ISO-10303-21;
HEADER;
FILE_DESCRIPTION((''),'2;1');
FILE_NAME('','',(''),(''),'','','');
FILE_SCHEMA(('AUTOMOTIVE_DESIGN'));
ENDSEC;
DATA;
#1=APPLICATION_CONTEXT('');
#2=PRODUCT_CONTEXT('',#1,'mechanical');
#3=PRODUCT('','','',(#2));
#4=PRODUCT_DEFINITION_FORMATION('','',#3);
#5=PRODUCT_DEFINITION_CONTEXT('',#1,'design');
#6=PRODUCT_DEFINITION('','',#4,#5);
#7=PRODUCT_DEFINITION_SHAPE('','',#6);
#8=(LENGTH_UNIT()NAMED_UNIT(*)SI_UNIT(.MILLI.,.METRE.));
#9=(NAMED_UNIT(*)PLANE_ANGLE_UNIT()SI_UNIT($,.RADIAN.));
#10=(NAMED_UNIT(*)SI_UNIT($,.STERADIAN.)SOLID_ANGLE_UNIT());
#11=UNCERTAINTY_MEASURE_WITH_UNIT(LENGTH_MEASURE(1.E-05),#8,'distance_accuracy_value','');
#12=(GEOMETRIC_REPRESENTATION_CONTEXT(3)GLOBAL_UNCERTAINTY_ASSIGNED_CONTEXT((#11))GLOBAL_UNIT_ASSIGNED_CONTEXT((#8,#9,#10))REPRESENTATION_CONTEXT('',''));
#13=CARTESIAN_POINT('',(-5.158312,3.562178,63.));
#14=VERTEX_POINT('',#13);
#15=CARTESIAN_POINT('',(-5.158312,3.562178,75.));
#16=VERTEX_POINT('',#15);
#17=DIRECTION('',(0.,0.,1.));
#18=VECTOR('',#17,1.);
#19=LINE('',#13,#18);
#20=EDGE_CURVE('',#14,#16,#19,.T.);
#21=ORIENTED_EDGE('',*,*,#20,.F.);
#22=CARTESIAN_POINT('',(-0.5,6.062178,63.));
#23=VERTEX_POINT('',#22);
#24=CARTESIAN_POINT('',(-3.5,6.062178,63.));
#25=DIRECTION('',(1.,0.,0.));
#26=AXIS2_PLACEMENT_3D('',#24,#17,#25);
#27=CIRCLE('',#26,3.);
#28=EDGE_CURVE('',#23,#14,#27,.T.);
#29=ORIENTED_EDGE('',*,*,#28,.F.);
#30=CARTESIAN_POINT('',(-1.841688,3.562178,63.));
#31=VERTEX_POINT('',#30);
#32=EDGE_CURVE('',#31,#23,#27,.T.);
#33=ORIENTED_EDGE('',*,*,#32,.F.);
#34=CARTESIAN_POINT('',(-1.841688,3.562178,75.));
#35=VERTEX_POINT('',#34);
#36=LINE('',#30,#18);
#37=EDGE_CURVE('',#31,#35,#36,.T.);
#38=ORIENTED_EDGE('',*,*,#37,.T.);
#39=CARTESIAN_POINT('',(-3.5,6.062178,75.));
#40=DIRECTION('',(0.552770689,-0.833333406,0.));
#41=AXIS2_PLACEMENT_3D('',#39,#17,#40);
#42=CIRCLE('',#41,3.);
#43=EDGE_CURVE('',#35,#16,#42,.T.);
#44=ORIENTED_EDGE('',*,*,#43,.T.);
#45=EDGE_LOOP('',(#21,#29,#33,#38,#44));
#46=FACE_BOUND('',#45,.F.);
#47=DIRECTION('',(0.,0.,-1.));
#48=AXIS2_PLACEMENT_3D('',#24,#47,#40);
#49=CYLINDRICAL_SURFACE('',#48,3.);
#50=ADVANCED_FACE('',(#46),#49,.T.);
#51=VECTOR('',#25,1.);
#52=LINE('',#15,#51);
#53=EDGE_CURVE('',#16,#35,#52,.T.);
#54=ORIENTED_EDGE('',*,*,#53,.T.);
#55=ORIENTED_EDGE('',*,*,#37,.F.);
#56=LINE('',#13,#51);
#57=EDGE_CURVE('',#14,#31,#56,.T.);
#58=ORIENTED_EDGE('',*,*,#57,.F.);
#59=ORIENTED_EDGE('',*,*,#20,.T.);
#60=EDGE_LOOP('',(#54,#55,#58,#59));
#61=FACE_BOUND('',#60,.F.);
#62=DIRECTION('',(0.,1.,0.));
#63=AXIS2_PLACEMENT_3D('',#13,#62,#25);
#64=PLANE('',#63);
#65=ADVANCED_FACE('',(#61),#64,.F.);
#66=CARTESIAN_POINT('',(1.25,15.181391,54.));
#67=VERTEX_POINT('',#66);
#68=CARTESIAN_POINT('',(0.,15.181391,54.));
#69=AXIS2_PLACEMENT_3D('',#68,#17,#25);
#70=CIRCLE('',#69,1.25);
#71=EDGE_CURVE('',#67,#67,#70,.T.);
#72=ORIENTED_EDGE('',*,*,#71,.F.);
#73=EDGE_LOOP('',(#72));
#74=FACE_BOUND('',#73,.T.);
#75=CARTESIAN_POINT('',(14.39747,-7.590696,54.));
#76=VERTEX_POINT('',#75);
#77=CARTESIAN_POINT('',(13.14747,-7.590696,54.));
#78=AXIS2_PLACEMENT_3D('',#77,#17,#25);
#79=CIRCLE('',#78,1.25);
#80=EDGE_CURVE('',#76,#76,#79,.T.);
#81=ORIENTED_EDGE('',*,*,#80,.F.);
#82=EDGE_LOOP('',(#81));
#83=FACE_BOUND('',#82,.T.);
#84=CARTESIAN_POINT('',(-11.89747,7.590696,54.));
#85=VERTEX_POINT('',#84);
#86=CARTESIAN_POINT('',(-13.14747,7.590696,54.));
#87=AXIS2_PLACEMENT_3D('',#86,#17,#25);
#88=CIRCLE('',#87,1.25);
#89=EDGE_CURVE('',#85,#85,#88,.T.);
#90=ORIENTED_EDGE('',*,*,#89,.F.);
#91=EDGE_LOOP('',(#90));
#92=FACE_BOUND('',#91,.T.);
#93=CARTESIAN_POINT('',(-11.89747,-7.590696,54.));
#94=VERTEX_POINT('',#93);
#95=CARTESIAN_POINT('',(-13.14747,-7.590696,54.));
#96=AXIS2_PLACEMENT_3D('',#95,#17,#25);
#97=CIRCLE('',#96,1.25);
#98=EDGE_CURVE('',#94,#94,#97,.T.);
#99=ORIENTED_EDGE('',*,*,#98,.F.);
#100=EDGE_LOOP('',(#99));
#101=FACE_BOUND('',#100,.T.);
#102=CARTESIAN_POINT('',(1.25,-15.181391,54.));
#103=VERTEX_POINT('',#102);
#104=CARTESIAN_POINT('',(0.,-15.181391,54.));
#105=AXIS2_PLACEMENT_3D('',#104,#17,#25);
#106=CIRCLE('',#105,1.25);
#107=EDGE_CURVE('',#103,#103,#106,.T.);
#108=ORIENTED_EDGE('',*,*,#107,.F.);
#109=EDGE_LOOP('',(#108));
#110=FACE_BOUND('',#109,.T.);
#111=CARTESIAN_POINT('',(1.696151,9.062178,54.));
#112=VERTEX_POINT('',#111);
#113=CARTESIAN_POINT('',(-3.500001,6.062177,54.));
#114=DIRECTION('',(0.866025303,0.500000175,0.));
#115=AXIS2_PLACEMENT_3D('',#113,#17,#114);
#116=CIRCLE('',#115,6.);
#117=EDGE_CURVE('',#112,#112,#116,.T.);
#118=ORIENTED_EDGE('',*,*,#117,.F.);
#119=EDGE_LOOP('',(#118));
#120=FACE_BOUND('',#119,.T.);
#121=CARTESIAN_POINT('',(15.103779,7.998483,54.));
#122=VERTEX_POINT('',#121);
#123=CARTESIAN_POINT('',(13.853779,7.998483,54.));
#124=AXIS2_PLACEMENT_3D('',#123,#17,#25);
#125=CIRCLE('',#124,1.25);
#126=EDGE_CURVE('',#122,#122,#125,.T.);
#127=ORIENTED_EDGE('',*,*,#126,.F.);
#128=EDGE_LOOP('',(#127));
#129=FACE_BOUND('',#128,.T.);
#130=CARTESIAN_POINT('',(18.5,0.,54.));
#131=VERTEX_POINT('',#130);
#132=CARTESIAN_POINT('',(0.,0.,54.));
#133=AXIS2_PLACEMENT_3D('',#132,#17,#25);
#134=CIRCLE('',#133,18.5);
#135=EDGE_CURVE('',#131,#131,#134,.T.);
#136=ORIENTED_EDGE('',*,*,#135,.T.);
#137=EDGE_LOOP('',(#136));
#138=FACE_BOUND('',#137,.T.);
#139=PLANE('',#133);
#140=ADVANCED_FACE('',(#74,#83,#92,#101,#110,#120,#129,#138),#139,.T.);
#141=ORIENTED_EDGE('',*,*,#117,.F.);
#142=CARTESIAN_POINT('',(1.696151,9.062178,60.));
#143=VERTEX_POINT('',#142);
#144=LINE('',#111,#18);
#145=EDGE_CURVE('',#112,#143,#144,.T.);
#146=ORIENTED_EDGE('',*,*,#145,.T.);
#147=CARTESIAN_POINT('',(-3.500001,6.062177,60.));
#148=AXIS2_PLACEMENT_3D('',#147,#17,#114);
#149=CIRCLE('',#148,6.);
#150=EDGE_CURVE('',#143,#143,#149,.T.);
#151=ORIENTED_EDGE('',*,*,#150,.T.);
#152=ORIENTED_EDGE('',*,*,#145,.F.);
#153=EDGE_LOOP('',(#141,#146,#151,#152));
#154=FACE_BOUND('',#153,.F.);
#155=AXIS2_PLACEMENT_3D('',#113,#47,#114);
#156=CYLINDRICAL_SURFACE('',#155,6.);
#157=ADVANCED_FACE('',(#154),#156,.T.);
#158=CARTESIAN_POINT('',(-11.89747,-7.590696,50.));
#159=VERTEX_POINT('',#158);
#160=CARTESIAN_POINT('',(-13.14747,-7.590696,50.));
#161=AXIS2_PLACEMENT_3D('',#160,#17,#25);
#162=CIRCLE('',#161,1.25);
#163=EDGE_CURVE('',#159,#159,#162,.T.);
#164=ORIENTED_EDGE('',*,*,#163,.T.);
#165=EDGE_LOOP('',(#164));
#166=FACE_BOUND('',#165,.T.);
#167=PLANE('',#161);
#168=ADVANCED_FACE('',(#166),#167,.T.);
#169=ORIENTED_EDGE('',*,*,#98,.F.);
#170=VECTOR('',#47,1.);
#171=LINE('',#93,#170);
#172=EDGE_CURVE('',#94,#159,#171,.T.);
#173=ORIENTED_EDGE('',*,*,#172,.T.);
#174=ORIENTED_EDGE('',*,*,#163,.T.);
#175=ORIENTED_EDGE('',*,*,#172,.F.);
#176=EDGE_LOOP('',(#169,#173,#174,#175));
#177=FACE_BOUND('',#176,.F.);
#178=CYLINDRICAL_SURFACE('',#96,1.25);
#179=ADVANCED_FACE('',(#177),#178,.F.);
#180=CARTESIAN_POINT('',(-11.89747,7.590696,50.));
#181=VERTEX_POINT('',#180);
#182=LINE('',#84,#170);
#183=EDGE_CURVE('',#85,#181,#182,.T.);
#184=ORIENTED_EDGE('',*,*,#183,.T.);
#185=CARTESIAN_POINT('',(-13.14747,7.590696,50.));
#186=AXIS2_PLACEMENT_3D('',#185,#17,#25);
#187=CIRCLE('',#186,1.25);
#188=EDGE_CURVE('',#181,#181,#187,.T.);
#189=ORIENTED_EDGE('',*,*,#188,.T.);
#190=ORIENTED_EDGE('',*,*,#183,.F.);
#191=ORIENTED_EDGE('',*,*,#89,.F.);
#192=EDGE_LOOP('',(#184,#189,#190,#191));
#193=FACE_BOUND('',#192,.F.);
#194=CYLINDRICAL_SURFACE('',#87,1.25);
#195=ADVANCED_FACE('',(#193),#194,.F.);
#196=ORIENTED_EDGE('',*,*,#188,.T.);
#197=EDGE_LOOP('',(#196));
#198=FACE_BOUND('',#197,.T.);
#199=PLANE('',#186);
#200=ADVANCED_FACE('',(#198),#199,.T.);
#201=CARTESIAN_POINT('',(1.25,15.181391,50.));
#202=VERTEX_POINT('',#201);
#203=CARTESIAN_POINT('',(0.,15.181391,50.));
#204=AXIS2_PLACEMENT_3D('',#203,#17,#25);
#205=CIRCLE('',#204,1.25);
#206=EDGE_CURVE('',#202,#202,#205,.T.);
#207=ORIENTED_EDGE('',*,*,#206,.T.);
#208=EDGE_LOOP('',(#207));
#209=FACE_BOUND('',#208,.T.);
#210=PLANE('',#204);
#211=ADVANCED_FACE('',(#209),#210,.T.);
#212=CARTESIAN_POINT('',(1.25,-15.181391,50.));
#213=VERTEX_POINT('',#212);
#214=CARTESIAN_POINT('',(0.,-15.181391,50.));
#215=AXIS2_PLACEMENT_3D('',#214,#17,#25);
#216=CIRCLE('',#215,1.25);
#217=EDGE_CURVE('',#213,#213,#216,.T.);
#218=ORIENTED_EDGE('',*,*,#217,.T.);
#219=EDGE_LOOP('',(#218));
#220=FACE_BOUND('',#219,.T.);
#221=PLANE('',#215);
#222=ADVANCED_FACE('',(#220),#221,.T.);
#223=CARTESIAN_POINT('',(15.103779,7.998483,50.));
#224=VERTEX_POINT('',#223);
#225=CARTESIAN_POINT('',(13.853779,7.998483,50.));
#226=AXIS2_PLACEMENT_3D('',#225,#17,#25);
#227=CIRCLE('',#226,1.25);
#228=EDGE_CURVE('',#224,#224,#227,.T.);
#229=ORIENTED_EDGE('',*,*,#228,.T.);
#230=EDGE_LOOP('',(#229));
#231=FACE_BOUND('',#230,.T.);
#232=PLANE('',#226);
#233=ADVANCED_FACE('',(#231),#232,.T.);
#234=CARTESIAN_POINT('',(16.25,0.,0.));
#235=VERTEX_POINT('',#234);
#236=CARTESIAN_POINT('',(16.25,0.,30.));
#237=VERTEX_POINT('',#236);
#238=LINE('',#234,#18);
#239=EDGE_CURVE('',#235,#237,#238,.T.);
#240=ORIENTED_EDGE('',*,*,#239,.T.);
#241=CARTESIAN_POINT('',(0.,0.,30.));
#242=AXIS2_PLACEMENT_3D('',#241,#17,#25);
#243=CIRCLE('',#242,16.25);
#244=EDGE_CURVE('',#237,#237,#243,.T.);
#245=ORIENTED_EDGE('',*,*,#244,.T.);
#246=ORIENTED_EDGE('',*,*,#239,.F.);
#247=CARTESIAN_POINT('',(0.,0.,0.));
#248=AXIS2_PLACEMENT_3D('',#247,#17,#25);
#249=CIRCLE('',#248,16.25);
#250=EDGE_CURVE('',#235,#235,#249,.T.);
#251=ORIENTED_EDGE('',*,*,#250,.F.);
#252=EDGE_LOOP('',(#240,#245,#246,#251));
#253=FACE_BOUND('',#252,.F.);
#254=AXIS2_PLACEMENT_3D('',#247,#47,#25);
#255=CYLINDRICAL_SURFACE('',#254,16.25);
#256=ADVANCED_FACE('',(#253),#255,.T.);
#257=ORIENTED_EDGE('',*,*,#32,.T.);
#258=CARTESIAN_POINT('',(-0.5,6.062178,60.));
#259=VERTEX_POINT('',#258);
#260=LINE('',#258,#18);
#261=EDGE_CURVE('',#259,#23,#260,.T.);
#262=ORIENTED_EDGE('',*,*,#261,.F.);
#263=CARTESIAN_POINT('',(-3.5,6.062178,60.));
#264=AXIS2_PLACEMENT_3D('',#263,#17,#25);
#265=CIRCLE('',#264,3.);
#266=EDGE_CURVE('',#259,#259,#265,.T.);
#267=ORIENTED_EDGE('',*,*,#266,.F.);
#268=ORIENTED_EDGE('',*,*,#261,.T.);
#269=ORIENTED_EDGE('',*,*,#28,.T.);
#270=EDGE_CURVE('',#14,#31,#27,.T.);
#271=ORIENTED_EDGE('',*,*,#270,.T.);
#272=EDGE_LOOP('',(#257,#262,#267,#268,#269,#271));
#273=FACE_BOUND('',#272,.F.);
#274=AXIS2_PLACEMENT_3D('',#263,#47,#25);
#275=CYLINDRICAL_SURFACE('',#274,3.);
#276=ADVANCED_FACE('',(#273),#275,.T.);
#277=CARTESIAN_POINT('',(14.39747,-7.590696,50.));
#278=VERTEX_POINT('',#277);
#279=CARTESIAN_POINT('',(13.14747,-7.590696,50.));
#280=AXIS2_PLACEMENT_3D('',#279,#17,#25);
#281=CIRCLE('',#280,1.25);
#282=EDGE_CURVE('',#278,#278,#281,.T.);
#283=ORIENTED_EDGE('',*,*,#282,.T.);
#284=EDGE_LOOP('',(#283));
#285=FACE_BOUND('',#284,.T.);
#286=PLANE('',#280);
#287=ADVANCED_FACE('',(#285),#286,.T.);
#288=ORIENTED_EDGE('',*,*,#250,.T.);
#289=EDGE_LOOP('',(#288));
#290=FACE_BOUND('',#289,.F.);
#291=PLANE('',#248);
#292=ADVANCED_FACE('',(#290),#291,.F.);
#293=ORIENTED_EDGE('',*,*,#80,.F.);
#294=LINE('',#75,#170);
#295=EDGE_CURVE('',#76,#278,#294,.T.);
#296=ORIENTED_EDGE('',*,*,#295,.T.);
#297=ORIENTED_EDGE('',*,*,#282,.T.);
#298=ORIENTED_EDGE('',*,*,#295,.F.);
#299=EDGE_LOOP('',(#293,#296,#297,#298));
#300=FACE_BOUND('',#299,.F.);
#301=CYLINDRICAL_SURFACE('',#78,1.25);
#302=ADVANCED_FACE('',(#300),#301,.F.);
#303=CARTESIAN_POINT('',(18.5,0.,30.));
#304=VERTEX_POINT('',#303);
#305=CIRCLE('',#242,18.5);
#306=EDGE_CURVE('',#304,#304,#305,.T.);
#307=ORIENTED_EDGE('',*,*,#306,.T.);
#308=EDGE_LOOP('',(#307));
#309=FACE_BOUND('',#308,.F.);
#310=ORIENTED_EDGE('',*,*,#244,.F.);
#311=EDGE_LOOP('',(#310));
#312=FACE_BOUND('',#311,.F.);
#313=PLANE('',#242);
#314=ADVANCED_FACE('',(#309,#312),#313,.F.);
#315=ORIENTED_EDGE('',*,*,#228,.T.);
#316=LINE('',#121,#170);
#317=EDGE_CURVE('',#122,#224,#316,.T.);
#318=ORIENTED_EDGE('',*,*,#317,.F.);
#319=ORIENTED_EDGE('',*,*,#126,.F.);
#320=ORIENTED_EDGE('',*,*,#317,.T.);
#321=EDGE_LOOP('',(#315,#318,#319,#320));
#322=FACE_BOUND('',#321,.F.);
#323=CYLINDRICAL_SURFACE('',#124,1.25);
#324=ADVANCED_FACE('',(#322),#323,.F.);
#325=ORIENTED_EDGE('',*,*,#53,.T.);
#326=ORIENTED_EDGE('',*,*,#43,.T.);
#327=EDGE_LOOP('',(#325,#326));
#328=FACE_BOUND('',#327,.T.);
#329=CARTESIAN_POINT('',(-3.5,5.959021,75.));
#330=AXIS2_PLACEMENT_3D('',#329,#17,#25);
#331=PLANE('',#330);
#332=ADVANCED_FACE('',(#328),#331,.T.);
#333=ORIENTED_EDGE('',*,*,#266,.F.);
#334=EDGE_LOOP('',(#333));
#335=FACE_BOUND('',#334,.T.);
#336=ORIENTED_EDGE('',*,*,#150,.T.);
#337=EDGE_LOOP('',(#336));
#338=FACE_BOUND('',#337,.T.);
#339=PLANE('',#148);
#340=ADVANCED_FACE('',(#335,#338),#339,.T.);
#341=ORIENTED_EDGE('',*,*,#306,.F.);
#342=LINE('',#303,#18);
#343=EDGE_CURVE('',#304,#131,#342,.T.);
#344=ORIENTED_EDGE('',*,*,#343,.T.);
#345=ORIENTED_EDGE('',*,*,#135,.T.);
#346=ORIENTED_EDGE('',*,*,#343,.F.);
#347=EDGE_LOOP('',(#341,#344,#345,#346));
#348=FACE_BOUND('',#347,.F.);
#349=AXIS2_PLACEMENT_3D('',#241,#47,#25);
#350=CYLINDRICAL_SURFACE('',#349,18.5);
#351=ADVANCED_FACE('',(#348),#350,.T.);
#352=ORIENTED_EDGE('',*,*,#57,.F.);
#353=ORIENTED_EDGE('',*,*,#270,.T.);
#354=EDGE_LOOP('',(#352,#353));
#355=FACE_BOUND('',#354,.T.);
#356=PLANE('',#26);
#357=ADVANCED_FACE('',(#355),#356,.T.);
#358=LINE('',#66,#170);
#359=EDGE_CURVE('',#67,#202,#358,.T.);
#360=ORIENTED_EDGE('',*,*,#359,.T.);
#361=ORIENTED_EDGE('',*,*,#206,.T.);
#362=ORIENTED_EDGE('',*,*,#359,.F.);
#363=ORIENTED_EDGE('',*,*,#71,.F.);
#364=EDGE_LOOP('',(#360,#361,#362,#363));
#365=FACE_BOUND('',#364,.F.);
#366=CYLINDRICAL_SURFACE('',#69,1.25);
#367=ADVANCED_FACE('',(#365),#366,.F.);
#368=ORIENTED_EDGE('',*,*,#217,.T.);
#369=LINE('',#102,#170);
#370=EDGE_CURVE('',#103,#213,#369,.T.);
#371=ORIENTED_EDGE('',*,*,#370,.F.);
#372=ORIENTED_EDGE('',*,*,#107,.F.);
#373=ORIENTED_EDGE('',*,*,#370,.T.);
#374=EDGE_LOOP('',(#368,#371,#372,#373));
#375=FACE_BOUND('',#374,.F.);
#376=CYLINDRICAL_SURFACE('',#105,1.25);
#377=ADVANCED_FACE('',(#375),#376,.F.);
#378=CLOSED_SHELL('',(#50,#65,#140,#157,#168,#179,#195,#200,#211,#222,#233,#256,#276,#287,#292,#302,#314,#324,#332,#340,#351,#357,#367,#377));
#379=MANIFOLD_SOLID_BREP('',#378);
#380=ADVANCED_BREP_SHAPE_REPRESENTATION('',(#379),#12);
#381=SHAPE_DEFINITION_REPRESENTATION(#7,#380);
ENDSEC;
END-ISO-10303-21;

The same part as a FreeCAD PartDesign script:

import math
import FreeCAD as App
import Part
import Sketcher

doc = App.newDocument("Part")
body = doc.addObject("PartDesign::Body", "Body")

# Sketch on XY plane
sketch1 = body.newObject("Sketcher::SketchObject", "Sketch")
sketch1.AttachmentSupport = (doc.getObject("XY_Plane"), [""])
sketch1.MapMode = "FlatFace"
sketch1.addGeometry(Part.Circle(App.Vector(0, 0, 0), App.Vector(0, 0, 1), 16), False)
sketch1.addConstraint([
    Sketcher.Constraint("Coincident", 0, 3, -1, 1),
    Sketcher.Constraint("Diameter", 0, 32.5),
])
pad1 = body.newObject("PartDesign::Pad", "Pad")
pad1.Profile = sketch1
pad1.Length = 30

# Sketch on XY plane
sketch2 = body.newObject("Sketcher::SketchObject", "Sketch001")
sketch2.AttachmentSupport = (doc.getObject("XY_Plane"), [""])
sketch2.MapMode = "FlatFace"
sketch2.AttachmentOffset = App.Placement(App.Vector(0, 0, 30), App.Rotation())
sketch2.addGeometry(Part.Circle(App.Vector(0, 0, 0), App.Vector(0, 0, 1), 18), False)
sketch2.addConstraint([
    Sketcher.Constraint("Coincident", 0, 3, -1, 1),
    Sketcher.Constraint("Diameter", 0, 37.0),
])
pad2 = body.newObject("PartDesign::Pad", "Pad001")
pad2.Profile = sketch2
pad2.Length = 24

# Sketch on XY plane
sketch3 = body.newObject("Sketcher::SketchObject", "Sketch002")
sketch3.AttachmentSupport = (doc.getObject("XY_Plane"), [""])
sketch3.MapMode = "FlatFace"
sketch3.AttachmentOffset = App.Placement(App.Vector(0, 0, 54), App.Rotation())
sketch3.addGeometry([
    Part.Circle(App.Vector(-13.1, 7.6, 0), App.Vector(0, 0, 1), 1.2),  # 0
    Part.Circle(App.Vector(-13.1, -7.6, 0), App.Vector(0, 0, 1), 1.2),  # 1
    Part.Circle(App.Vector(13.1, -7.6, 0), App.Vector(0, 0, 1), 1.2),  # 2
    Part.Circle(App.Vector(0, 15.2, 0), App.Vector(0, 0, 1), 1.2),  # 3
    Part.Circle(App.Vector(13.9, 8, 0), App.Vector(0, 0, 1), 1.2),  # 4
    Part.Circle(App.Vector(0, -15.2, 0), App.Vector(0, 0, 1), 1.2),  # 5
], False)
sketch3.addConstraint([
    Sketcher.Constraint("Equal", 0, 1),
    Sketcher.Constraint("Equal", 1, 2),
    Sketcher.Constraint("Equal", 2, 3),
    Sketcher.Constraint("Equal", 3, 4),
    Sketcher.Constraint("Equal", 4, 5),
    Sketcher.Constraint("Symmetric", 0, 3, 2, 3, -1, 1),
    Sketcher.Constraint("Symmetric", 3, 3, 5, 3, -1, 1),
    Sketcher.Constraint("Symmetric", 1, 3, 2, 3, -2),
    Sketcher.Constraint("PointOnObject", 3, 3, -2),
    Sketcher.Constraint("Diameter", 0, 2.5),
    Sketcher.Constraint("DistanceX", 0, 3, -1, 1, 13.14747),
    Sketcher.Constraint("DistanceY", -1, 1, 3, 3, 15.181391),
    Sketcher.Constraint("DistanceX", -1, 1, 4, 3, 13.853779),
    Sketcher.Constraint("DistanceY", 2, 3, 4, 3, 15.589179),
    Sketcher.Constraint("DistanceY", -1, 1, 0, 3, 7.590696),
])
pocket1 = body.newObject("PartDesign::Pocket", "Pocket")
pocket1.Profile = sketch3
pocket1.Length = 4

# Sketch on XY plane
sketch4 = body.newObject("Sketcher::SketchObject", "Sketch003")
sketch4.AttachmentSupport = (doc.getObject("XY_Plane"), [""])
sketch4.MapMode = "FlatFace"
sketch4.AttachmentOffset = App.Placement(App.Vector(0, 0, 54), App.Rotation())
sketch4.addGeometry(Part.Circle(App.Vector(-4, 6, 0), App.Vector(0, 0, 1), 6), False)
sketch4.addConstraint([
    Sketcher.Constraint("Diameter", 0, 12.0),
    Sketcher.Constraint("DistanceX", 0, 3, -1, 1, 3.500001),
    Sketcher.Constraint("DistanceY", -1, 1, 0, 3, 6.062177),
])
pad3 = body.newObject("PartDesign::Pad", "Pad002")
pad3.Profile = sketch4
pad3.Length = 6

# Sketch on XY plane
sketch5 = body.newObject("Sketcher::SketchObject", "Sketch004")
sketch5.AttachmentSupport = (doc.getObject("XY_Plane"), [""])
sketch5.MapMode = "FlatFace"
sketch5.AttachmentOffset = App.Placement(App.Vector(0, 0, 60), App.Rotation())
sketch5.addGeometry(Part.Circle(App.Vector(-3.5, 6.1, 0), App.Vector(0, 0, 1), 3), False)
sketch5.addConstraint([
    Sketcher.Constraint("Diameter", 0, 6.0),
    Sketcher.Constraint("DistanceX", 0, 3, -1, 1, 3.5),
    Sketcher.Constraint("DistanceY", -1, 1, 0, 3, 6.062178),
])
pad4 = body.newObject("PartDesign::Pad", "Pad003")
pad4.Profile = sketch5
pad4.Length = 3

# Sketch on XY plane
sketch6 = body.newObject("Sketcher::SketchObject", "Sketch005")
sketch6.AttachmentSupport = (doc.getObject("XY_Plane"), [""])
sketch6.MapMode = "FlatFace"
sketch6.AttachmentOffset = App.Placement(App.Vector(0, 0, 63), App.Rotation())
sketch6.addGeometry([
    Part.LineSegment(App.Vector(-5.2, 3.6, 0), App.Vector(-1.8, 3.6, 0)),
    Part.ArcOfCircle(Part.Circle(App.Vector(-3.5, 6.1, 0), App.Vector(0, 0, 1), 3), math.radians(-56), math.radians(236)),
], False)
sketch6.addConstraint([
    Sketcher.Constraint("Coincident", 0, 1, 1, 2),
    Sketcher.Constraint("Coincident", 1, 1, 0, 2),
    Sketcher.Constraint("Horizontal", 0),
    Sketcher.Constraint("Radius", 1, 3.0),
    Sketcher.Constraint("DistanceX", 1, 3, -1, 1, 3.5),
    Sketcher.Constraint("DistanceY", 0, 1, 1, 3, 2.5),
    Sketcher.Constraint("DistanceY", -1, 1, 1, 3, 6.062178),
])
pad5 = body.newObject("PartDesign::Pad", "Pad004")
pad5.Profile = sketch6
pad5.Length = 12

doc.recompute()
